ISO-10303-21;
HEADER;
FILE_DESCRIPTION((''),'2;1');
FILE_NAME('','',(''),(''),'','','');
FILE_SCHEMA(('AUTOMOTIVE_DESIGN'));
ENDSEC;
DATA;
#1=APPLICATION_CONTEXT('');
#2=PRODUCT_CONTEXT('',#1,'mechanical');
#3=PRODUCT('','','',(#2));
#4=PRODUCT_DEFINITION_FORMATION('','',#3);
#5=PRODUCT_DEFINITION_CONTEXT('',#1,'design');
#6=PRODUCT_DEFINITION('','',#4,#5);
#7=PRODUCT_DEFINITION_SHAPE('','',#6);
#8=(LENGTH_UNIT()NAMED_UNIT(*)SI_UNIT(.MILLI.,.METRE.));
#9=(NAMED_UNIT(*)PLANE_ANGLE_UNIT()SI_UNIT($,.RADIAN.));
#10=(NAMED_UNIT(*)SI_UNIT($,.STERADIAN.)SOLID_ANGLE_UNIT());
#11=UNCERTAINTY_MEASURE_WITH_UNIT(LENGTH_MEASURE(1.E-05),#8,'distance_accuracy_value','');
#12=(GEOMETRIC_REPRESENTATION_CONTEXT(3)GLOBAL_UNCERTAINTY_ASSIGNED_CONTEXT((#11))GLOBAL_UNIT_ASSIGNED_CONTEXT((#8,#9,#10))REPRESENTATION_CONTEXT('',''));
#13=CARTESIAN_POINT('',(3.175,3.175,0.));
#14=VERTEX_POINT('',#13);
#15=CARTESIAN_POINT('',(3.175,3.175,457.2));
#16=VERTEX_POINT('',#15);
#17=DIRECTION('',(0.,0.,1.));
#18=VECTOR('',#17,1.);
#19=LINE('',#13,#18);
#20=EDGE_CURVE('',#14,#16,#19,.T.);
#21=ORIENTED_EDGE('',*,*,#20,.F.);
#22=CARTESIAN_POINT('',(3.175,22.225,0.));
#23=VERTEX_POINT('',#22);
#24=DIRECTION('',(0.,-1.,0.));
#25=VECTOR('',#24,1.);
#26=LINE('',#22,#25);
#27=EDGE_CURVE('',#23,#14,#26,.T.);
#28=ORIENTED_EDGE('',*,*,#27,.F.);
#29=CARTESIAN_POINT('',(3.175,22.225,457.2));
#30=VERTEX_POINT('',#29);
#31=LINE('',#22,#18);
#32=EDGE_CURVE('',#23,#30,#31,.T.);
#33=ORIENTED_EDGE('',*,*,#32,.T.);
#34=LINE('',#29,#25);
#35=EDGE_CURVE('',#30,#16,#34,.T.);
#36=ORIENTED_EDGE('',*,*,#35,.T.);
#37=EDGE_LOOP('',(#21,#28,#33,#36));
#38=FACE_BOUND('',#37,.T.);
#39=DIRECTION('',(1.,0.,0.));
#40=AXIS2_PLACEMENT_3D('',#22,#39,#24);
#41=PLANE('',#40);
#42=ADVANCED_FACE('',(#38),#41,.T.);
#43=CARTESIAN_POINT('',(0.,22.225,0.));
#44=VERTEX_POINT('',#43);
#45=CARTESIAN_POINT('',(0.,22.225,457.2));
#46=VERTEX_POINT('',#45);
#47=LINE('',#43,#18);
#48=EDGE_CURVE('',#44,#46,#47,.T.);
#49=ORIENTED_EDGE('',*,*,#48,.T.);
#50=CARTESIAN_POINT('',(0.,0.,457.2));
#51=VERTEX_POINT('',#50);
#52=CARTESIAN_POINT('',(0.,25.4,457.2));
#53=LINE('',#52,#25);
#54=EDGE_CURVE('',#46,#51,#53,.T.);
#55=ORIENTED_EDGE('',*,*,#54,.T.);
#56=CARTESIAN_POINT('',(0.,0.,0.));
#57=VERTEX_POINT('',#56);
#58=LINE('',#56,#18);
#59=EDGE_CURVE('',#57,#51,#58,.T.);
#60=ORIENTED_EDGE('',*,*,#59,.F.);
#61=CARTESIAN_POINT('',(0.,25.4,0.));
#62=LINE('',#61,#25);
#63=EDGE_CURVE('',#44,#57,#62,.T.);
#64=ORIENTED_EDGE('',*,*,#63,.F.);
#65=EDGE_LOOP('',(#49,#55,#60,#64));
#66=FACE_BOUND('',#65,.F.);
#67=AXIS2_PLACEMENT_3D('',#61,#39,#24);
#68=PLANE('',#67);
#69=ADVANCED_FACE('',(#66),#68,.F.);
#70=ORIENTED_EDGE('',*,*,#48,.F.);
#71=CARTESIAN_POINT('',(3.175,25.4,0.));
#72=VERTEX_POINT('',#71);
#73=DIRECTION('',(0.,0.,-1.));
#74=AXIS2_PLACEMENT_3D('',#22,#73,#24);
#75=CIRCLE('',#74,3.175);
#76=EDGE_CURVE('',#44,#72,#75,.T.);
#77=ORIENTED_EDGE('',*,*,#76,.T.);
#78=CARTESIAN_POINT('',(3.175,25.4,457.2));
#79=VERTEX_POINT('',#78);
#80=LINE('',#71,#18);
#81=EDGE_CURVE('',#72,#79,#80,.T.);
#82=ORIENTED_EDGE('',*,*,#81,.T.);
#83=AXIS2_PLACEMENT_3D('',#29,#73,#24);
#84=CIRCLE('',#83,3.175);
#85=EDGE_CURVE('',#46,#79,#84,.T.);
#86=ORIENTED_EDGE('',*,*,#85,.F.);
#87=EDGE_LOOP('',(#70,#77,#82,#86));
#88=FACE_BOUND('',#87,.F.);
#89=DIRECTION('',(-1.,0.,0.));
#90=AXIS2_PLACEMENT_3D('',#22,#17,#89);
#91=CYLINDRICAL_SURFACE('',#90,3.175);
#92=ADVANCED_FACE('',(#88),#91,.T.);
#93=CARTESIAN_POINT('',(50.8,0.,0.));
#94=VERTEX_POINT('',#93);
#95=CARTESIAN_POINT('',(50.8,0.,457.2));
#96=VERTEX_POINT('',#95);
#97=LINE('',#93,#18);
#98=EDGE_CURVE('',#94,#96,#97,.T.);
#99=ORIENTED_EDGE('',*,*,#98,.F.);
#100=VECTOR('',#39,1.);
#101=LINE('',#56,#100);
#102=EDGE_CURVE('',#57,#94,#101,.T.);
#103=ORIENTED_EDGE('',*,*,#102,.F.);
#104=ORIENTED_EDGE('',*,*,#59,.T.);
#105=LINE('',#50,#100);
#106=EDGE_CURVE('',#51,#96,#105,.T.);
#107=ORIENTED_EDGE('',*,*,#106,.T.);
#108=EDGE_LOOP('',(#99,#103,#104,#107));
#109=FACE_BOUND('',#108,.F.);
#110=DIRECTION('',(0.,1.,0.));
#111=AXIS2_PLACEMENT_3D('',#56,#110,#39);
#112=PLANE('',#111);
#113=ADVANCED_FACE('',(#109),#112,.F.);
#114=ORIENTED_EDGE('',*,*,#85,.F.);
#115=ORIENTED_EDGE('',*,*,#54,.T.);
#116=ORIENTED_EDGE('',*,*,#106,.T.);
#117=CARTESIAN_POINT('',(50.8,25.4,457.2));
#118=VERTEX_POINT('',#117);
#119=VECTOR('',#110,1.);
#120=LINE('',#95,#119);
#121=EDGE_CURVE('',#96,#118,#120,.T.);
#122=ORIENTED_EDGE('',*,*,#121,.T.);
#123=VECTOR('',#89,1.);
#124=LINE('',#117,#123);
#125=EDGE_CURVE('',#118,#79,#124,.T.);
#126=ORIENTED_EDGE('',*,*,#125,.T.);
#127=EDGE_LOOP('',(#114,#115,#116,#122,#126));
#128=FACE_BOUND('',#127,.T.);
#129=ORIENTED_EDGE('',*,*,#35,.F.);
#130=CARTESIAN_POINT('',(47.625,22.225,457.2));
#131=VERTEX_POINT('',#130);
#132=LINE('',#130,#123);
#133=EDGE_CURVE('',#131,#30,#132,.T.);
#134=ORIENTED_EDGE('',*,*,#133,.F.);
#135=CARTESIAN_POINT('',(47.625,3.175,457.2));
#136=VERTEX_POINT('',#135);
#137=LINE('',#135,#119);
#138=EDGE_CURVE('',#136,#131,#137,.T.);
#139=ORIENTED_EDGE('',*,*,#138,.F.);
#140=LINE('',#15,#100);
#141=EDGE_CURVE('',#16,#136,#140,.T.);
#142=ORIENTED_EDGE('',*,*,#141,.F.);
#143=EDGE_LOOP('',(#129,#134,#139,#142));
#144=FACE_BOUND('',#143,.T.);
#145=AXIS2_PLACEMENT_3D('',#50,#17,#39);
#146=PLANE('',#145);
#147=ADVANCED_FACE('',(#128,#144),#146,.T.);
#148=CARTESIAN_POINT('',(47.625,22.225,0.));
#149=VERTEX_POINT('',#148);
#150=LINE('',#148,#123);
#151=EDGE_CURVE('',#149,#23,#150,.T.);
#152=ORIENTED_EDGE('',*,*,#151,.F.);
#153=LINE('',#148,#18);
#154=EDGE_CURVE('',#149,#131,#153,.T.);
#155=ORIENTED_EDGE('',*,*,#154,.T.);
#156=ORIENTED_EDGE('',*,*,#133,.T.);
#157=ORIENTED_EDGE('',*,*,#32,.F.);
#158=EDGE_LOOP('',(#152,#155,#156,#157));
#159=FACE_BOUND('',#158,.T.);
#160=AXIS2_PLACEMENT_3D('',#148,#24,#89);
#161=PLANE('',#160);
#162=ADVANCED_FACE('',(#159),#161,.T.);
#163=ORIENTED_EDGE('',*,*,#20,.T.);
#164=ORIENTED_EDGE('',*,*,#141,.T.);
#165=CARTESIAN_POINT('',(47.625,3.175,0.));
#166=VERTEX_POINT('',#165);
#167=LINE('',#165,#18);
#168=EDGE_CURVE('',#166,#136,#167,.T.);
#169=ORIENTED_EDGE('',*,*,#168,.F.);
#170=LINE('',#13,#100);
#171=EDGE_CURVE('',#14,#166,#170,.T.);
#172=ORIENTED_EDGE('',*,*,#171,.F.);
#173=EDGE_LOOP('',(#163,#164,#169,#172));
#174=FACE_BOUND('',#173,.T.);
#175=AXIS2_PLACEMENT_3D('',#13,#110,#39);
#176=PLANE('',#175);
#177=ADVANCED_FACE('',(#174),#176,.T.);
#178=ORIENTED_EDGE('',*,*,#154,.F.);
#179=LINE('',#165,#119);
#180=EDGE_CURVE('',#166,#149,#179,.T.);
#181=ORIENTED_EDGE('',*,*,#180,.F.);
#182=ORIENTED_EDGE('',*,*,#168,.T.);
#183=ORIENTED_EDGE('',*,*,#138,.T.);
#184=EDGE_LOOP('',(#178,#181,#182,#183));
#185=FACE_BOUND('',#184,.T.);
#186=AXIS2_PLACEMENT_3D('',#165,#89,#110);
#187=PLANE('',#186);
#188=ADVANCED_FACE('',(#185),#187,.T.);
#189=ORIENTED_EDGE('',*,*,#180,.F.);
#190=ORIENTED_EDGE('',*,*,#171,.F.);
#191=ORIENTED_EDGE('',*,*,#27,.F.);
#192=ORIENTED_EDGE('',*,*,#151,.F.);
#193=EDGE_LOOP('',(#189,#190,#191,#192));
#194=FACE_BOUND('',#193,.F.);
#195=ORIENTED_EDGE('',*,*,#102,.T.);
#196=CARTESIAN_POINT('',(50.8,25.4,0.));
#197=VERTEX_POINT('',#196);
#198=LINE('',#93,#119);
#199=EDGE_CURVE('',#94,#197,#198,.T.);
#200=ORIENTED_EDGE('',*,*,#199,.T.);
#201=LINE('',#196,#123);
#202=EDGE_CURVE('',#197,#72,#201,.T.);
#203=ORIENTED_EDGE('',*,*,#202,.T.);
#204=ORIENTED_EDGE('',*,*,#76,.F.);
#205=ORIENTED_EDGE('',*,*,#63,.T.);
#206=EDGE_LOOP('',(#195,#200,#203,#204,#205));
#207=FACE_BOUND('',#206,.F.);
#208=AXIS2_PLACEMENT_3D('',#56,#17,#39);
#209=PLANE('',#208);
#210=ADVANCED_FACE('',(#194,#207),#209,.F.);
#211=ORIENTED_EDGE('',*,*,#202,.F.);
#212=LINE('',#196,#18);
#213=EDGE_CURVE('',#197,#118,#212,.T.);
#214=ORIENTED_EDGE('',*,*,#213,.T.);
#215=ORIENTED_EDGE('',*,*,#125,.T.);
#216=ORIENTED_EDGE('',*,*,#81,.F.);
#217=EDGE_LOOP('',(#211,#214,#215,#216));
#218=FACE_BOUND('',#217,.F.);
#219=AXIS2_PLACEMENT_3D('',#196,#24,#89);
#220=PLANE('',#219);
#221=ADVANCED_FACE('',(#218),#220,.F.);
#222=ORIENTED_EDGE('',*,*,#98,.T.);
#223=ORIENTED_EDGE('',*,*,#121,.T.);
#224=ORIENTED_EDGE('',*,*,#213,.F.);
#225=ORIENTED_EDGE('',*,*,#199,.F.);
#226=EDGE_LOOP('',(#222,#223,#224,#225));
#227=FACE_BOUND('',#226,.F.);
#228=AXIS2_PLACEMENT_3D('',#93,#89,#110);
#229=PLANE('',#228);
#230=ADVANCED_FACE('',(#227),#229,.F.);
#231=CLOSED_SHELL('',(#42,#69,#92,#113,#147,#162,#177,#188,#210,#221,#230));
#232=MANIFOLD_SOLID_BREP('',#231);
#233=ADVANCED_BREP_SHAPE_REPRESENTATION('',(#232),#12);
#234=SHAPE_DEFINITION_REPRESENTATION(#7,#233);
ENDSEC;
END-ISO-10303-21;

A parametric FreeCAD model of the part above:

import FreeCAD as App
import Part
import Sketcher
Q = App.Units.Quantity


def edges_at(feature, points):
    """Names of the edges that pass closest to the given points."""
    edges = feature.Shape.Edges
    near = lambda p: min(range(len(edges)), key=lambda i: edges[i].distToShape(Part.Vertex(*p))[0])
    return sorted({f"Edge{near(p) + 1}" for p in points})

doc = App.newDocument("Part")
body = doc.addObject("PartDesign::Body", "Body")

# Sketch on XY plane
sketch1 = doc.addObject("Sketcher::SketchObject", "Sketch")
body.addObject(sketch1)
sketch1.AttachmentSupport = (doc.XY_Plane, [""])
sketch1.MapMode = "FlatFace"
sketch1.addGeometry(Part.LineSegment(App.Vector(0, 25.4, 0), App.Vector(0, 0, 0)), False)
sketch1.addGeometry(Part.LineSegment(App.Vector(0, 0, 0), App.Vector(50.8, 0, 0)), False)
sketch1.addGeometry(Part.LineSegment(App.Vector(50.8, 0, 0), App.Vector(50.8, 25.4, 0)), False)
sketch1.addGeometry(Part.LineSegment(App.Vector(50.8, 25.4, 0), App.Vector(0, 25.4, 0)), False)
sketch1.addGeometry(Part.LineSegment(App.Vector(47.625, 3.175, 0), App.Vector(3.175, 3.175, 0)), False)
sketch1.addGeometry(Part.LineSegment(App.Vector(3.175, 3.175, 0), App.Vector(3.175, 22.225, 0)), False)
sketch1.addGeometry(Part.LineSegment(App.Vector(3.175, 22.225, 0), App.Vector(47.625, 22.225, 0)), False)
sketch1.addGeometry(Part.LineSegment(App.Vector(47.625, 22.225, 0), App.Vector(47.625, 3.175, 0)), False)
sketch1.addConstraint(Sketcher.Constraint("Coincident", 0, 2, 1, 1))
sketch1.addConstraint(Sketcher.Constraint("Coincident", 1, 2, 2, 1))
sketch1.addConstraint(Sketcher.Constraint("Coincident", 2, 2, 3, 1))
sketch1.addConstraint(Sketcher.Constraint("Coincident", 3, 2, 0, 1))
sketch1.addConstraint(Sketcher.Constraint("Coincident", 4, 2, 5, 1))
sketch1.addConstraint(Sketcher.Constraint("Coincident", 5, 2, 6, 1))
sketch1.addConstraint(Sketcher.Constraint("Coincident", 6, 2, 7, 1))
sketch1.addConstraint(Sketcher.Constraint("Coincident", 7, 2, 4, 1))
sketch1.addConstraint(Sketcher.Constraint("Vertical", 0))
sketch1.addConstraint(Sketcher.Constraint("Horizontal", 1))
sketch1.addConstraint(Sketcher.Constraint("Vertical", 2))
sketch1.addConstraint(Sketcher.Constraint("Horizontal", 3))
sketch1.addConstraint(Sketcher.Constraint("Horizontal", 4))
sketch1.addConstraint(Sketcher.Constraint("Vertical", 5))
sketch1.addConstraint(Sketcher.Constraint("Horizontal", 6))
sketch1.addConstraint(Sketcher.Constraint("Vertical", 7))
sketch1.addConstraint(Sketcher.Constraint("Coincident", 0, 2, -1, 1))
sketch1.addConstraint(Sketcher.Constraint("DistanceX", 1, 1, 1, 2, Q("2 in")))
sketch1.addConstraint(Sketcher.Constraint("DistanceY", 0, 2, 0, 1, Q("1 in")))
sketch1.addConstraint(Sketcher.Constraint("DistanceX", -1, 1, 4, 2, Q("0.125 in")))
sketch1.addConstraint(Sketcher.Constraint("DistanceY", -1, 1, 4, 2, Q("0.125 in")))
sketch1.addConstraint(Sketcher.Constraint("DistanceY", 5, 2, 3, 2, Q("0.125 in")))
sketch1.addConstraint(Sketcher.Constraint("DistanceX", 6, 2, 2, 2, Q("0.125 in")))
pad1 = doc.addObject("PartDesign::Pad", "Pad")
body.addObject(pad1)
pad1.Profile = sketch1
pad1.Length = Q("18 in")
doc.recompute()

fillet = doc.addObject("PartDesign::Fillet", "Fillet")
body.addObject(fillet)
fillet.Base = (pad1, edges_at(pad1, [(0, 25.4, 228.6)]))
fillet.Radius = Q("0.125 in")

doc.recompute()
